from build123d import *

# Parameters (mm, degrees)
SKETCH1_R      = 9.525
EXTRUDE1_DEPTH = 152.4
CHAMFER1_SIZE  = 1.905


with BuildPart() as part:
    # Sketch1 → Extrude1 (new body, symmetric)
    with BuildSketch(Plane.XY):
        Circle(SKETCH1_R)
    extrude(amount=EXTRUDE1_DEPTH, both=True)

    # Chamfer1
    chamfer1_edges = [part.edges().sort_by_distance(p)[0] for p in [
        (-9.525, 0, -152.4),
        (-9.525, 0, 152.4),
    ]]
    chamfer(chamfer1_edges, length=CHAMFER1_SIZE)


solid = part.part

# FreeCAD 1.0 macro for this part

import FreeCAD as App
import Part
import Sketcher

V = App.Vector
Q = App.Units.Quantity


def edges_at(feature, points):
    """Names of the edges that pass closest to the given points."""
    edges = feature.Shape.Edges
    near = lambda p: min(range(len(edges)), key=lambda i: edges[i].distToShape(Part.Vertex(*p))[0])
    return sorted({f"Edge{near(p) + 1}" for p in points})

doc = App.newDocument("Part")
params = doc.addObject("Spreadsheet::Sheet", "Params")
for row, (alias, value) in enumerate([
    ("sketch1_diameter", "0.75 in"),
    ("pad1_length", "12 in"),
    ("chamfer_size", "0.075 in"),
], start=1):
    params.set(f"A{row}", alias)
    params.set(f"B{row}", "=" + value)
    params.setAlias(f"B{row}", alias)

body = doc.addObject("PartDesign::Body", "Body")

sketch1 = body.newObject("Sketcher::SketchObject", "Sketch")
sketch1.AttachmentSupport = (doc.getObject("XY_Plane"), [""])
sketch1.MapMode = "FlatFace"
sketch1.addGeometry(Part.Circle(V(0, 0, 0), V(0, 0, 1), 9.525), False)
sketch1.addConstraint([
    Sketcher.Constraint("Coincident", 0, 3, -1, 1),
    Sketcher.Constraint("Diameter", 0, Q("0.75 in")),
])
sketch1.setExpression("Constraints[1]", "Params.sketch1_diameter")
pad1 = body.newObject("PartDesign::Pad", "Pad")
pad1.Profile = sketch1
pad1.setExpression("Length", "Params.pad1_length")
pad1.Midplane = True
doc.recompute()

chamfer = body.newObject("PartDesign::Chamfer", "Chamfer")
chamfer.Base = (pad1, edges_at(pad1, [(-9.525, 0, -152.4), (-9.525, 0, 152.4)]))
chamfer.setExpression("Size", "Params.chamfer_size")

doc.recompute()
